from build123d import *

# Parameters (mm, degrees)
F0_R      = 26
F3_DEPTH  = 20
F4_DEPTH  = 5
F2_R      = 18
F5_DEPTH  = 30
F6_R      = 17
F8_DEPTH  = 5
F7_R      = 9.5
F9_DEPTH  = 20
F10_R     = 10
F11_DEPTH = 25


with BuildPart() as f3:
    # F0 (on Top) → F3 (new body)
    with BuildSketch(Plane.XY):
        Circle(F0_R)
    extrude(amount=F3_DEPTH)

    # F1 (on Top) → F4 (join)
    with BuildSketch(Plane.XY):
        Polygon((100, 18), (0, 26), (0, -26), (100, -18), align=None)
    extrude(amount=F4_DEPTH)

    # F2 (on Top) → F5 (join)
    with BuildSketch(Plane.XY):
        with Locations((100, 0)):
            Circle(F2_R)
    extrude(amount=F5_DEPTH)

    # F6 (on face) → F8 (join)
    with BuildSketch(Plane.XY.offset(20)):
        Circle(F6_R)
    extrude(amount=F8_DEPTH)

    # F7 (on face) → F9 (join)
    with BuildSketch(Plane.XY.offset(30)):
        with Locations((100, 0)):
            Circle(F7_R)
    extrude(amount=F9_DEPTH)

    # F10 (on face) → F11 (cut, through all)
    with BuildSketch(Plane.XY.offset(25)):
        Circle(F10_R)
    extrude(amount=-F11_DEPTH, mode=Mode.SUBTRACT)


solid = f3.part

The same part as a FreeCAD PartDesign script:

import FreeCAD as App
import Part
import Sketcher

V = App.Vector
Q = App.Units.Quantity


def add_polygon(sketch, points):
    """Adds a closed chain of lines whose ends are joined by coincident constraints."""
    first, n = sketch.GeometryCount, len(points)
    for a, b in zip(points, points[1:] + points[:1]):
        sketch.addGeometry(Part.LineSegment(App.Vector(*a, 0), App.Vector(*b, 0)), False)
    for i in range(n):
        sketch.addConstraint(Sketcher.Constraint("Coincident", first + i, 2, first + (i + 1) % n, 1))

doc = App.newDocument("Part")
body = doc.addObject("PartDesign::Body", "Body")

# Sketch on XY plane
sketch1 = body.newObject("Sketcher::SketchObject", "Sketch")
sketch1.AttachmentSupport = (doc.getObject("XY_Plane"), [""])
sketch1.MapMode = "FlatFace"
sketch1.addGeometry(Part.Circle(V(0, 0, 0), V(0, 0, 1), 26), False)
sketch1.addConstraint([
    Sketcher.Constraint("Coincident", 0, 3, -1, 1),
    Sketcher.Constraint("Diameter", 0, Q("52 mm")),
])
pad1 = body.newObject("PartDesign::Pad", "Pad")
pad1.Profile = sketch1
pad1.Length = 20

# Sketch on XY plane
sketch2 = body.newObject("Sketcher::SketchObject", "Sketch001")
sketch2.AttachmentSupport = (doc.getObject("XY_Plane"), [""])
sketch2.MapMode = "FlatFace"
add_polygon(sketch2, [(100, 18), (0, 26), (0, -26), (100, -18)])  # lines 0-3
sketch2.addConstraint([
    Sketcher.Constraint("Vertical", 1),
    Sketcher.Constraint("Vertical", 3),
    Sketcher.Constraint("Symmetric", 0, 2, 1, 2, -1, 1),
    Sketcher.Constraint("Equal", 0, 2),
    Sketcher.Constraint("DistanceY", 1, 2, 1, 1, Q("52 mm")),
    Sketcher.Constraint("DistanceY", 3, 1, 3, 2, Q("36 mm")),
    Sketcher.Constraint("DistanceX", -1, 1, 2, 2, Q("100 mm")),
])
pad2 = body.newObject("PartDesign::Pad", "Pad001")
pad2.Profile = sketch2
pad2.Length = 5

# Sketch on XY plane
sketch3 = body.newObject("Sketcher::SketchObject", "Sketch002")
sketch3.AttachmentSupport = (doc.getObject("XY_Plane"), [""])
sketch3.MapMode = "FlatFace"
sketch3.addGeometry(Part.Circle(V(100, 0, 0), V(0, 0, 1), 18), False)
sketch3.addConstraint([
    Sketcher.Constraint("PointOnObject", 0, 3, -1),
    Sketcher.Constraint("Diameter", 0, Q("36 mm")),
    Sketcher.Constraint("DistanceX", -1, 1, 0, 3, Q("100 mm")),
])
pad3 = body.newObject("PartDesign::Pad", "Pad002")
pad3.Profile = sketch3
pad3.Length = 30

# Sketch on XY plane
sketch4 = body.newObject("Sketcher::SketchObject", "Sketch003")
sketch4.AttachmentSupport = (doc.getObject("XY_Plane"), [""])
sketch4.MapMode = "FlatFace"
sketch4.AttachmentOffset = App.Placement(V(0, 0, 20), App.Rotation())
sketch4.addGeometry(Part.Circle(V(0, 0, 0), V(0, 0, 1), 17), False)
sketch4.addConstraint([
    Sketcher.Constraint("Coincident", 0, 3, -1, 1),
    Sketcher.Constraint("Diameter", 0, Q("34 mm")),
])
pad4 = body.newObject("PartDesign::Pad", "Pad003")
pad4.Profile = sketch4
pad4.Length = 5

# Sketch on XY plane
sketch5 = body.newObject("Sketcher::SketchObject", "Sketch004")
sketch5.AttachmentSupport = (doc.getObject("XY_Plane"), [""])
sketch5.MapMode = "FlatFace"
sketch5.AttachmentOffset = App.Placement(V(0, 0, 30), App.Rotation())
sketch5.addGeometry(Part.Circle(V(100, 0, 0), V(0, 0, 1), 10), False)
sketch5.addConstraint([
    Sketcher.Constraint("PointOnObject", 0, 3, -1),
    Sketcher.Constraint("Diameter", 0, Q("19 mm")),
    Sketcher.Constraint("DistanceX", -1, 1, 0, 3, Q("100 mm")),
])
pad5 = body.newObject("PartDesign::Pad", "Pad004")
pad5.Profile = sketch5
pad5.Length = 20

# Sketch on XY plane
sketch6 = body.newObject("Sketcher::SketchObject", "Sketch005")
sketch6.AttachmentSupport = (doc.getObject("XY_Plane"), [""])
sketch6.MapMode = "FlatFace"
sketch6.AttachmentOffset = App.Placement(V(0, 0, 25), App.Rotation())
sketch6.addGeometry(Part.Circle(V(0, 0, 0), V(0, 0, 1), 10), False)
sketch6.addConstraint([
    Sketcher.Constraint("Coincident", 0, 3, -1, 1),
    Sketcher.Constraint("Diameter", 0, Q("20 mm")),
])
pocket1 = body.newObject("PartDesign::Pocket", "Pocket")
pocket1.Profile = sketch6
pocket1.Type = "ThroughAll"

doc.recompute()
